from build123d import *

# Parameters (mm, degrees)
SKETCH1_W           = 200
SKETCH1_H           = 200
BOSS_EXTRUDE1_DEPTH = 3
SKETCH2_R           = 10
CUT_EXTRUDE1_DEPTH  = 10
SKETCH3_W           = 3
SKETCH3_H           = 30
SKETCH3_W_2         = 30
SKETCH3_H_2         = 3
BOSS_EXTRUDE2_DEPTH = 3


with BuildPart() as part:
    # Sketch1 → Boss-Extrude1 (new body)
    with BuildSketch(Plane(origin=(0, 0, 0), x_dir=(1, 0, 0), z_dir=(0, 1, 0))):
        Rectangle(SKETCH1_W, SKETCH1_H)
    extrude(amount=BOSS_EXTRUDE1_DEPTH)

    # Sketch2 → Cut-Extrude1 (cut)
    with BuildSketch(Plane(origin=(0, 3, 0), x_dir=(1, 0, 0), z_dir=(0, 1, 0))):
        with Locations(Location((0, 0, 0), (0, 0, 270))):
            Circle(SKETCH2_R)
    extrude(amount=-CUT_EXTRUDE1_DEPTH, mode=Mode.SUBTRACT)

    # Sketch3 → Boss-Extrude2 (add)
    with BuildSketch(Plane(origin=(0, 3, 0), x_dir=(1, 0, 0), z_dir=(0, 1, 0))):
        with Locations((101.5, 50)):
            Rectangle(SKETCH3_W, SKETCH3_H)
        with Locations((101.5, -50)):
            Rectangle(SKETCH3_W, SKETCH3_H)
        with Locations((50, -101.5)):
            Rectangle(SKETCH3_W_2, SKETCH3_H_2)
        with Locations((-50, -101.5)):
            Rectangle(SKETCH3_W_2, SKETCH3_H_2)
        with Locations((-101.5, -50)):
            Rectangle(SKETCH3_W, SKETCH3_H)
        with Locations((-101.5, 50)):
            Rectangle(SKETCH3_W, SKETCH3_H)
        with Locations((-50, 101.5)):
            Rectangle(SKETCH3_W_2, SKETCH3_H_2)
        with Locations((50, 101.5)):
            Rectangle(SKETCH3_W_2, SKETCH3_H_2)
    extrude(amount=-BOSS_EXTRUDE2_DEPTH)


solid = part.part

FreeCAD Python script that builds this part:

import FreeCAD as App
import Part
import Sketcher
from FreeCAD import Vector

doc = App.newDocument("Part")
params = doc.addObject("Spreadsheet::Sheet", "Params")
for row, (alias, value) in enumerate([
    ("sketch1_width", "200 mm"),
    ("pad1_length", "3 mm"),
    ("sketch2_diameter", "20 mm"),
    ("pocket1_length", "10 mm"),
    ("sketch3_width", "3 mm"),
    ("sketch3_width2", "30 mm"),
    ("pad2_length", "3 mm"),
], start=1):
    params.set(f"A{row}", alias)
    params.set(f"B{row}", "=" + value)
    params.setAlias(f"B{row}", alias)

body = doc.addObject("PartDesign::Body", "Body")

# Sketch on XZ plane
sketch1 = body.newObject("Sketcher::SketchObject", "Sketch")
sketch1.AttachmentSupport = (doc.getObject("XZ_Plane"), [""])
sketch1.MapMode = "FlatFace"
sketch1.addGeometry([
    Part.LineSegment(Vector(-100, -100, 0), Vector(-100, 100, 0)),
    Part.LineSegment(Vector(-100, 100, 0), Vector(100, 100, 0)),
    Part.LineSegment(Vector(100, 100, 0), Vector(100, -100, 0)),
    Part.LineSegment(Vector(100, -100, 0), Vector(-100, -100, 0)),
], False)
sketch1.addConstraint([
    Sketcher.Constraint("Coincident", 0, 2, 1, 1),
    Sketcher.Constraint("Coincident", 1, 2, 2, 1),
    Sketcher.Constraint("Coincident", 2, 2, 3, 1),
    Sketcher.Constraint("Coincident", 3, 2, 0, 1),
    Sketcher.Constraint("Vertical", 0),
    Sketcher.Constraint("Horizontal", 1),
    Sketcher.Constraint("Vertical", 2),
    Sketcher.Constraint("Horizontal", 3),
    Sketcher.Constraint("Symmetric", 0, 2, 2, 2, -1, 1),
    Sketcher.Constraint("Equal", 3, 0),
    Sketcher.Constraint("DistanceX", 1, 1, 1, 2, 200.0),
])
sketch1.setExpression("Constraints[10]", "Params.sketch1_width")
pad1 = body.newObject("PartDesign::Pad", "Pad")
pad1.Profile = sketch1
pad1.setExpression("Length", "Params.pad1_length")
pad1.Reversed = True

# Sketch on XZ plane
sketch2 = body.newObject("Sketcher::SketchObject", "Sketch001")
sketch2.AttachmentSupport = (doc.getObject("XZ_Plane"), [""])
sketch2.MapMode = "FlatFace"
sketch2.AttachmentOffset = App.Placement(Vector(0, 0, -3), App.Rotation())
sketch2.addGeometry(Part.Circle(Vector(0, 0, 0), Vector(0, 0, 1), 10), False)
sketch2.addConstraint([
    Sketcher.Constraint("Coincident", 0, 3, -1, 1),
    Sketcher.Constraint("Diameter", 0, 20.0),
])
sketch2.setExpression("Constraints[1]", "Params.sketch2_diameter")
pocket1 = body.newObject("PartDesign::Pocket", "Pocket")
pocket1.Profile = sketch2
pocket1.setExpression("Length", "Params.pocket1_length")
pocket1.Reversed = True

# Sketch on XZ plane
sketch3 = body.newObject("Sketcher::SketchObject", "Sketch002")
sketch3.AttachmentSupport = (doc.getObject("XZ_Plane"), [""])
sketch3.MapMode = "FlatFace"
sketch3.AttachmentOffset = App.Placement(Vector(0, 0, -3), App.Rotation())
sketch3.addGeometry([
    Part.LineSegment(Vector(100, -65, 0), Vector(100, -35, 0)),  # 0
    Part.LineSegment(Vector(100, -35, 0), Vector(103, -35, 0)),  # 1
    Part.LineSegment(Vector(103, -35, 0), Vector(103, -65, 0)),  # 2
    Part.LineSegment(Vector(103, -65, 0), Vector(100, -65, 0)),  # 3
    Part.LineSegment(Vector(100, 35, 0), Vector(100, 65, 0)),  # 4
    Part.LineSegment(Vector(100, 65, 0), Vector(103, 65, 0)),  # 5
    Part.LineSegment(Vector(103, 65, 0), Vector(103, 35, 0)),  # 6
    Part.LineSegment(Vector(103, 35, 0), Vector(100, 35, 0)),  # 7
    Part.LineSegment(Vector(35, 100, 0), Vector(35, 103, 0)),  # 8
    Part.LineSegment(Vector(35, 103, 0), Vector(65, 103, 0)),  # 9
    Part.LineSegment(Vector(65, 103, 0), Vector(65, 100, 0)),  # 10
    Part.LineSegment(Vector(65, 100, 0), Vector(35, 100, 0)),  # 11
    Part.LineSegment(Vector(-65, 100, 0), Vector(-65, 103, 0)),  # 12
    Part.LineSegment(Vector(-65, 103, 0), Vector(-35, 103, 0)),  # 13
    Part.LineSegment(Vector(-35, 103, 0), Vector(-35, 100, 0)),  # 14
    Part.LineSegment(Vector(-35, 100, 0), Vector(-65, 100, 0)),  # 15
    Part.LineSegment(Vector(-103, 35, 0), Vector(-103, 65, 0)),  # 16
    Part.LineSegment(Vector(-103, 65, 0), Vector(-100, 65, 0)),  # 17
    Part.LineSegment(Vector(-100, 65, 0), Vector(-100, 35, 0)),  # 18
    Part.LineSegment(Vector(-100, 35, 0), Vector(-103, 35, 0)),  # 19
    Part.LineSegment(Vector(-103, -65, 0), Vector(-103, -35, 0)),  # 20
    Part.LineSegment(Vector(-103, -35, 0), Vector(-100, -35, 0)),  # 21
    Part.LineSegment(Vector(-100, -35, 0), Vector(-100, -65, 0)),  # 22
    Part.LineSegment(Vector(-100, -65, 0), Vector(-103, -65, 0)),  # 23
    Part.LineSegment(Vector(-65, -103, 0), Vector(-65, -100, 0)),  # 24
    Part.LineSegment(Vector(-65, -100, 0), Vector(-35, -100, 0)),  # 25
    Part.LineSegment(Vector(-35, -100, 0), Vector(-35, -103, 0)),  # 26
    Part.LineSegment(Vector(-35, -103, 0), Vector(-65, -103, 0)),  # 27
    Part.LineSegment(Vector(35, -103, 0), Vector(35, -100, 0)),  # 28
    Part.LineSegment(Vector(35, -100, 0), Vector(65, -100, 0)),  # 29
    Part.LineSegment(Vector(65, -100, 0), Vector(65, -103, 0)),  # 30
    Part.LineSegment(Vector(65, -103, 0), Vector(35, -103, 0)),  # 31
], False)
sketch3.addConstraint([
    Sketcher.Constraint("Coincident", 0, 2, 1, 1),
    Sketcher.Constraint("Coincident", 1, 2, 2, 1),
    Sketcher.Constraint("Coincident", 2, 2, 3, 1),
    Sketcher.Constraint("Coincident", 3, 2, 0, 1),
    Sketcher.Constraint("Coincident", 4, 2, 5, 1),
    Sketcher.Constraint("Coincident", 5, 2, 6, 1),
    Sketcher.Constraint("Coincident", 6, 2, 7, 1),
    Sketcher.Constraint("Coincident", 7, 2, 4, 1),
    Sketcher.Constraint("Coincident", 8, 2, 9, 1),
    Sketcher.Constraint("Coincident", 9, 2, 10, 1),
    Sketcher.Constraint("Coincident", 10, 2, 11, 1),
    Sketcher.Constraint("Coincident", 11, 2, 8, 1),
    Sketcher.Constraint("Coincident", 12, 2, 13, 1),
    Sketcher.Constraint("Coincident", 13, 2, 14, 1),
    Sketcher.Constraint("Coincident", 14, 2, 15, 1),
    Sketcher.Constraint("Coincident", 15, 2, 12, 1),
    Sketcher.Constraint("Coincident", 16, 2, 17, 1),
    Sketcher.Constraint("Coincident", 17, 2, 18, 1),
    Sketcher.Constraint("Coincident", 18, 2, 19, 1),
    Sketcher.Constraint("Coincident", 19, 2, 16, 1),
    Sketcher.Constraint("Coincident", 20, 2, 21, 1),
    Sketcher.Constraint("Coincident", 21, 2, 22, 1),
    Sketcher.Constraint("Coincident", 22, 2, 23, 1),
    Sketcher.Constraint("Coincident", 23, 2, 20, 1),
    Sketcher.Constraint("Coincident", 24, 2, 25, 1),
    Sketcher.Constraint("Coincident", 25, 2, 26, 1),
    Sketcher.Constraint("Coincident", 26, 2, 27, 1),
    Sketcher.Constraint("Coincident", 27, 2, 24, 1),
    Sketcher.Constraint("Coincident", 28, 2, 29, 1),
    Sketcher.Constraint("Coincident", 29, 2, 30, 1),
    Sketcher.Constraint("Coincident", 30, 2, 31, 1),
    Sketcher.Constraint("Coincident", 31, 2, 28, 1),
    Sketcher.Constraint("Vertical", 0),
    Sketcher.Constraint("Horizontal", 1),
    Sketcher.Constraint("Vertical", 2),
    Sketcher.Constraint("Horizontal", 3),
    Sketcher.Constraint("Vertical", 4),
    Sketcher.Constraint("Horizontal", 5),
    Sketcher.Constraint("Vertical", 6),
    Sketcher.Constraint("Horizontal", 7),
    Sketcher.Constraint("Vertical", 8),
    Sketcher.Constraint("Horizontal", 9),
    Sketcher.Constraint("Vertical", 10),
    Sketcher.Constraint("Horizontal", 11),
    Sketcher.Constraint("Vertical", 12),
    Sketcher.Constraint("Horizontal", 13),
    Sketcher.Constraint("Vertical", 14),
    Sketcher.Constraint("Horizontal", 15),
    Sketcher.Constraint("Vertical", 16),
    Sketcher.Constraint("Horizontal", 17),
    Sketcher.Constraint("Vertical", 18),
    Sketcher.Constraint("Horizontal", 19),
    Sketcher.Constraint("Vertical", 20),
    Sketcher.Constraint("Horizontal", 21),
    Sketcher.Constraint("Vertical", 22),
    Sketcher.Constraint("Horizontal", 23),
    Sketcher.Constraint("Vertical", 24),
    Sketcher.Constraint("Horizontal", 25),
    Sketcher.Constraint("Vertical", 26),
    Sketcher.Constraint("Horizontal", 27),
    Sketcher.Constraint("Vertical", 28),
    Sketcher.Constraint("Horizontal", 29),
    Sketcher.Constraint("Vertical", 30),
    Sketcher.Constraint("Horizontal", 31),
    Sketcher.Constraint("Symmetric", 2, 2, 16, 2, -1, 1),
    Sketcher.Constraint("Symmetric", 0, 2, 18, 2, -1, 1),
    Sketcher.Constraint("Symmetric", 6, 2, 20, 2, -1, 1),
    Sketcher.Constraint("Symmetric", 4, 2, 22, 2, -1, 1),
    Sketcher.Constraint("Symmetric", 10, 2, 24, 2, -1, 1),
    Sketcher.Constraint("Symmetric", 8, 2, 26, 2, -1, 1),
    Sketcher.Constraint("Symmetric", 14, 2, 28, 2, -1, 1),
    Sketcher.Constraint("Symmetric", 12, 2, 30, 2, -1, 1),
    Sketcher.Constraint("Symmetric", 9, 2, 12, 2, -2),
    Sketcher.Constraint("Symmetric", 11, 2, 14, 2, -2),
    Sketcher.Constraint("Symmetric", 5, 2, 16, 2, -2),
    Sketcher.Constraint("Symmetric", 7, 2, 18, 2, -2),
    Sketcher.Constraint("Equal", 31, 0),
    Sketcher.Constraint("Equal", 23, 8),
    Sketcher.Constraint("DistanceX", 1, 1, 1, 2, 3.0),
    Sketcher.Constraint("DistanceX", 9, 1, 9, 2, 30.0),
    Sketcher.Constraint("DistanceX", -1, 1, 0, 2, 100.0),
    Sketcher.Constraint("DistanceY", 0, 2, -1, 1, 35.0),
    Sketcher.Constraint("DistanceX", -1, 1, 8, 2, 35.0),
    Sketcher.Constraint("DistanceY", -1, 1, 8, 2, 103.0),
])
sketch3.setExpression("Constraints[78]", "Params.sketch3_width")
sketch3.setExpression("Constraints[79]", "Params.sketch3_width2")
pad2 = body.newObject("PartDesign::Pad", "Pad001")
pad2.Profile = sketch3
pad2.setExpression("Length", "Params.pad2_length")

doc.recompute()
